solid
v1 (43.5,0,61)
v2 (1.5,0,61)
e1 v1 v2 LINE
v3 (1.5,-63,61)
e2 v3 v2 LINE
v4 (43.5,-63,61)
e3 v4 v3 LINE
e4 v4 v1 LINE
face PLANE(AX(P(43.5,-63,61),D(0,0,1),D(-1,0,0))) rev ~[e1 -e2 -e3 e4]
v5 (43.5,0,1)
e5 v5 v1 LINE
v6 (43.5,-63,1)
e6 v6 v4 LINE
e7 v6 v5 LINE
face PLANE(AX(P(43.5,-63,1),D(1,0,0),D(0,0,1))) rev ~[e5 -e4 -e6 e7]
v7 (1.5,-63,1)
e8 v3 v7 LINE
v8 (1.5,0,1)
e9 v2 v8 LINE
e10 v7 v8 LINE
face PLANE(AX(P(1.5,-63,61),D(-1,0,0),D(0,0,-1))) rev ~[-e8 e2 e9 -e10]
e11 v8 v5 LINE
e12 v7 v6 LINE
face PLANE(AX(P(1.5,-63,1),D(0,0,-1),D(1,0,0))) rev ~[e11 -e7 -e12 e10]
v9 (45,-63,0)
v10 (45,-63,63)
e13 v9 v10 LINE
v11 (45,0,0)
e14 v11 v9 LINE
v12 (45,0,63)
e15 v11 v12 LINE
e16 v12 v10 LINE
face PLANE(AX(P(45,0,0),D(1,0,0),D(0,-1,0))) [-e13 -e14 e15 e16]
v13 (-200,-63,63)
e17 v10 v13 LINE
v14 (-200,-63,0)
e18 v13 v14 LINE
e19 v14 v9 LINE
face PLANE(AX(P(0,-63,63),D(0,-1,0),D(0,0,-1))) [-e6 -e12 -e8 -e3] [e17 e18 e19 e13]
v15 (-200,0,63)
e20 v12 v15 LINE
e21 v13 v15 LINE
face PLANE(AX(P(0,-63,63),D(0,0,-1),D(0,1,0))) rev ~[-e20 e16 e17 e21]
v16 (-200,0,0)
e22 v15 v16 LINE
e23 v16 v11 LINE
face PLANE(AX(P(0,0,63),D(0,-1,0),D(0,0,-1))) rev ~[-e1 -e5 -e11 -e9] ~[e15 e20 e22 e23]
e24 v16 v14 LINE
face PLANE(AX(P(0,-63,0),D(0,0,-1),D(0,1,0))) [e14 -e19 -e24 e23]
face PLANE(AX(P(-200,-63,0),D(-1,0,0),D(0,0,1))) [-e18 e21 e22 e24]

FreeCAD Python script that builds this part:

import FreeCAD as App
import Part
import Sketcher
from FreeCAD import Vector
Q = App.Units.Quantity


def add_polygon(sketch, points):
    """Adds a closed chain of lines whose ends are joined by coincident constraints."""
    first, n = sketch.GeometryCount, len(points)
    for a, b in zip(points, points[1:] + points[:1]):
        sketch.addGeometry(Part.LineSegment(App.Vector(*a, 0), App.Vector(*b, 0)), False)
    for i in range(n):
        sketch.addConstraint(Sketcher.Constraint("Coincident", first + i, 2, first + (i + 1) % n, 1))

doc = App.newDocument("Part")
body = doc.addObject("PartDesign::Body", "Body")

sketch1 = body.newObject("Sketcher::SketchObject", "Sketch")
sketch1.AttachmentSupport = (doc.getObject("XY_Plane"), [""])
sketch1.MapMode = "FlatFace"
add_polygon(sketch1, [(45, 0), (0, 0), (0, -63), (45, -63)])
sketch1.addConstraint([
    Sketcher.Constraint("Horizontal", 0),
    Sketcher.Constraint("Vertical", 1),
    Sketcher.Constraint("Horizontal", 2),
    Sketcher.Constraint("Vertical", 3),
    Sketcher.Constraint("Coincident", 0, 2, -1, 1),
    Sketcher.Constraint("DistanceX", 0, 2, 0, 1, Q("45 mm")),
    Sketcher.Constraint("DistanceY", 1, 2, 1, 1, Q("63 mm")),
])
pad1 = body.newObject("PartDesign::Pad", "Pad")
pad1.Profile = sketch1
pad1.Length = 63

sketch2 = body.newObject("Sketcher::SketchObject", "Sketch001")
sketch2.AttachmentSupport = (doc.getObject("XZ_Plane"), [""])
sketch2.MapMode = "FlatFace"
sketch2.AttachmentOffset = App.Placement(Vector(0, 0, 63), App.Rotation())
add_polygon(sketch2, [(2, 61), (2, 1), (44, 1), (44, 61)])
sketch2.addConstraint([
    Sketcher.Constraint("Vertical", 0),
    Sketcher.Constraint("Horizontal", 1),
    Sketcher.Constraint("Vertical", 2),
    Sketcher.Constraint("Horizontal", 3),
    Sketcher.Constraint("DistanceX", 1, 1, 1, 2, Q("42 mm")),
    Sketcher.Constraint("DistanceY", 0, 2, 0, 1, Q("60 mm")),
    Sketcher.Constraint("DistanceY", -1, 1, 0, 2, Q("1 mm")),
    Sketcher.Constraint("DistanceX", -1, 1, 0, 2, Q("1.5 mm")),
])
pocket1 = body.newObject("PartDesign::Pocket", "Pocket")
pocket1.Profile = sketch2
pocket1.Length = 63

sketch3 = body.newObject("Sketcher::SketchObject", "Sketch002")
sketch3.AttachmentSupport = (doc.getObject("YZ_Plane"), [""])
sketch3.MapMode = "FlatFace"
add_polygon(sketch3, [(-63, 0), (-63, 63), (-57, 63), (-57, 0)])
sketch3.addConstraint([
    Sketcher.Constraint("Vertical", 0),
    Sketcher.Constraint("Horizontal", 1),
    Sketcher.Constraint("Vertical", 2),
    Sketcher.Constraint("Horizontal", 3),
    Sketcher.Constraint("PointOnObject", 2, 2, -1),
    Sketcher.Constraint("DistanceY", 0, 1, 0, 2, Q("63 mm")),
    Sketcher.Constraint("DistanceX", 0, 2, -1, 1, Q("63 mm")),
    Sketcher.Constraint("DistanceX", 1, 1, 1, 2, Q("6.1882 mm")),
])
pad2 = body.newObject("PartDesign::Pad", "Pad001")
pad2.Profile = sketch3
pad2.Length = 200
pad2.Reversed = True

sketch4 = body.newObject("Sketcher::SketchObject", "Sketch003")
sketch4.AttachmentSupport = (doc.getObject("YZ_Plane"), [""])
sketch4.MapMode = "FlatFace"
add_polygon(sketch4, [(-57, 0), (-57, 63), (0, 63), (0, 0)])
sketch4.addConstraint([
    Sketcher.Constraint("Horizontal", 1),
    Sketcher.Constraint("Vertical", 2),
    Sketcher.Constraint("Horizontal", 3),
    Sketcher.Constraint("Coincident", 2, 2, -1, 1),
    Sketcher.Constraint("DistanceY", 2, 2, 2, 1, Q("63 mm")),
    Sketcher.Constraint("Angle", 0, Q("90.001 deg")),
    Sketcher.Constraint("DistanceX", 1, 1, 1, 2, Q("56.813 mm")),
])
pad3 = body.newObject("PartDesign::Pad", "Pad002")
pad3.Profile = sketch4
pad3.Length = 200
pad3.Reversed = True

doc.recompute()
